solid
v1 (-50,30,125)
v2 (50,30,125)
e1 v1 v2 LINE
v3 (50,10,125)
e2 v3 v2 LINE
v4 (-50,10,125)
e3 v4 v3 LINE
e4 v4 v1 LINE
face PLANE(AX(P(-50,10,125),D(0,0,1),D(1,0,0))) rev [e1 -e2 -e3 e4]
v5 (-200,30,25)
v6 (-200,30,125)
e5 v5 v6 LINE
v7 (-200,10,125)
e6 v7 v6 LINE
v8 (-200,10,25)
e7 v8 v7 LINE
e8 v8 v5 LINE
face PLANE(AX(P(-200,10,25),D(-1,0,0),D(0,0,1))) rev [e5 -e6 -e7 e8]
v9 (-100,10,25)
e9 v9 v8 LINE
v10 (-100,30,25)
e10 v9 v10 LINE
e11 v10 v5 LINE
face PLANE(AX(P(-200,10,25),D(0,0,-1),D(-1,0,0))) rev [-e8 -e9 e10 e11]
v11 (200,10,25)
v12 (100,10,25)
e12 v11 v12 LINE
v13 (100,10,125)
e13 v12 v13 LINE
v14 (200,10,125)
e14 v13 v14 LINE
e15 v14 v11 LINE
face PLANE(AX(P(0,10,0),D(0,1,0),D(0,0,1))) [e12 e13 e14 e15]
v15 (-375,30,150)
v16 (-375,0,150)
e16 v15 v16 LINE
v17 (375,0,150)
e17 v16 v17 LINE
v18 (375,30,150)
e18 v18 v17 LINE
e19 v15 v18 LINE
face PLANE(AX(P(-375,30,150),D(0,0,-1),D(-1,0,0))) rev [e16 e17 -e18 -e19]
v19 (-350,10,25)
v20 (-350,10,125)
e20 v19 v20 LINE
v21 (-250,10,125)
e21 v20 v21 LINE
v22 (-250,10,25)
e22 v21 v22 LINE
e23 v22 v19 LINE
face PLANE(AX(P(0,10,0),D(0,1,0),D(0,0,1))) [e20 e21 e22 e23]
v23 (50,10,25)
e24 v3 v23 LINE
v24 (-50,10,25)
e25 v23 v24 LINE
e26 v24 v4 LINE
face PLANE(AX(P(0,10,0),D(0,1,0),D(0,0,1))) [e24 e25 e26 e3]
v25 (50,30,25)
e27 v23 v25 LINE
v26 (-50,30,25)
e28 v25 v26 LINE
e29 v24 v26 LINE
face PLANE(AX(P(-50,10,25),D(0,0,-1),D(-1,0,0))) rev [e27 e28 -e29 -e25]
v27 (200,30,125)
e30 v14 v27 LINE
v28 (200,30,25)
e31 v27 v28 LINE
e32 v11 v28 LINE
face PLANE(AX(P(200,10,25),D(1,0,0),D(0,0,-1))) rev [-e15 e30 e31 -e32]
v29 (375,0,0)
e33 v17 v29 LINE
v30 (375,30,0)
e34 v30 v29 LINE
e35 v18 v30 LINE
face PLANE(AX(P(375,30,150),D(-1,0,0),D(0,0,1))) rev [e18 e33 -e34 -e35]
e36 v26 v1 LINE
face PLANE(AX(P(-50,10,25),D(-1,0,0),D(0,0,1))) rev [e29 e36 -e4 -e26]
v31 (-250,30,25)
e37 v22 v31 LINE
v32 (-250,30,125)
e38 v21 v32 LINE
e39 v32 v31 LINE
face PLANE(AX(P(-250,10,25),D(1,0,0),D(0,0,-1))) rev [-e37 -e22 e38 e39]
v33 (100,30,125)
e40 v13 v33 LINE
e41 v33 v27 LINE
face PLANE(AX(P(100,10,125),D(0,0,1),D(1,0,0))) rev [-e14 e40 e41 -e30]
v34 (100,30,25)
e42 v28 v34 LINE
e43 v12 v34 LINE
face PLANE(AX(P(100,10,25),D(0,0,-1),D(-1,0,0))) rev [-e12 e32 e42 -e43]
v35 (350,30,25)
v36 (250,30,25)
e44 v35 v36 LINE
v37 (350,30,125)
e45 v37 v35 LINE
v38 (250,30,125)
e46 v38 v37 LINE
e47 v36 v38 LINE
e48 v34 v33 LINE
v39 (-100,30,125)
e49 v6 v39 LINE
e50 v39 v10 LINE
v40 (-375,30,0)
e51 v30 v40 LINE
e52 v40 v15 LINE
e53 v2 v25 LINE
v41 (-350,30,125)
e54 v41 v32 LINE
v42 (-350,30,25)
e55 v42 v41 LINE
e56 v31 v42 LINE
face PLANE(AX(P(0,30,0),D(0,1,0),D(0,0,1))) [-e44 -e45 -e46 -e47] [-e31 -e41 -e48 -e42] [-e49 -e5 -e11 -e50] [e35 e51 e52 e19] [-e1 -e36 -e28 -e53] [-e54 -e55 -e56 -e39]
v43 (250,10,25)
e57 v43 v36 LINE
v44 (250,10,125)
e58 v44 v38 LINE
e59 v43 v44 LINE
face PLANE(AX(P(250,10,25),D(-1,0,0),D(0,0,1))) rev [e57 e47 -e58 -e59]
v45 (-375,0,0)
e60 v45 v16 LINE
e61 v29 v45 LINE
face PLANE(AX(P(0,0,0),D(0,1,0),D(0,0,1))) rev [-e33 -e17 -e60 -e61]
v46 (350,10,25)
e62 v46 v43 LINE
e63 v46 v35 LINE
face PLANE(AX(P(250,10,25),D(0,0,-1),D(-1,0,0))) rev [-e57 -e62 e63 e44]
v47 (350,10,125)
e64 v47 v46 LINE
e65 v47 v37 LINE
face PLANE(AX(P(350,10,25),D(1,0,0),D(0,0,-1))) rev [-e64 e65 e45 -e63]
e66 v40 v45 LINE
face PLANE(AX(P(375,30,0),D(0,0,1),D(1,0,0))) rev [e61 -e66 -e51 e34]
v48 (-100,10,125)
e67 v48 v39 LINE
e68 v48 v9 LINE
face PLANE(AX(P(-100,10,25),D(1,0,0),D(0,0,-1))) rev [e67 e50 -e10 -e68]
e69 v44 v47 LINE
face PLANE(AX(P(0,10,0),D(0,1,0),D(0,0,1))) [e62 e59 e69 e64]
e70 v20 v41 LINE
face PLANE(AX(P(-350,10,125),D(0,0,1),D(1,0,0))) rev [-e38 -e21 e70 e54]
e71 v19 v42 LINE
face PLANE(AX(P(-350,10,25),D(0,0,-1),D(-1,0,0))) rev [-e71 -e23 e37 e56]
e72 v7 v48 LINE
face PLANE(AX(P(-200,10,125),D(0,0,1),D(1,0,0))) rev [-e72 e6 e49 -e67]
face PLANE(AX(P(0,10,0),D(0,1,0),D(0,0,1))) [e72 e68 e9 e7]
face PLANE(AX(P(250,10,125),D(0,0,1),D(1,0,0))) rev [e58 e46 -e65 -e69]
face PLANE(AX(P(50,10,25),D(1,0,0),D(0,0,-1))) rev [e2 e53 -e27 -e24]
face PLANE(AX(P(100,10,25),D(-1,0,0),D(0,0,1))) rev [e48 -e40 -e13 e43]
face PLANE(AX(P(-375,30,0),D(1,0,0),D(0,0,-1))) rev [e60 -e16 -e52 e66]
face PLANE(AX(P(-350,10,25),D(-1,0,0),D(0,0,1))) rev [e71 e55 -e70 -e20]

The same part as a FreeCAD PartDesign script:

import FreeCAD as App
import Part
import Sketcher

V = App.Vector
Q = App.Units.Quantity

doc = App.newDocument("Part")
params = doc.addObject("Spreadsheet::Sheet", "Params")
for row, (alias, value) in enumerate([
    ("sketch1_width", "750 mm"),
    ("sketch1_height", "150 mm"),
    ("pad1_length", "30 mm"),
    ("sketch2_width", "100 mm"),
    ("pocket1_length", "20 mm"),
], start=1):
    params.set(f"A{row}", alias)
    params.set(f"B{row}", "=" + value)
    params.setAlias(f"B{row}", alias)

body = doc.addObject("PartDesign::Body", "Body")

sketch1 = body.newObject("Sketcher::SketchObject", "Sketch")
sketch1.AttachmentSupport = (doc.getObject("XZ_Plane"), [""])
sketch1.MapMode = "FlatFace"
sketch1.addGeometry([
    Part.LineSegment(V(-375, 0, 0), V(-375, 150, 0)),
    Part.LineSegment(V(-375, 150, 0), V(375, 150, 0)),
    Part.LineSegment(V(375, 150, 0), V(375, 0, 0)),
    Part.LineSegment(V(375, 0, 0), V(-375, 0, 0)),
], False)
sketch1.addConstraint([
    Sketcher.Constraint("Coincident", 0, 2, 1, 1),
    Sketcher.Constraint("Coincident", 1, 2, 2, 1),
    Sketcher.Constraint("Coincident", 2, 2, 3, 1),
    Sketcher.Constraint("Coincident", 3, 2, 0, 1),
    Sketcher.Constraint("Vertical", 0),
    Sketcher.Constraint("Horizontal", 1),
    Sketcher.Constraint("Vertical", 2),
    Sketcher.Constraint("Horizontal", 3),
    Sketcher.Constraint("Symmetric", 2, 2, 3, 2, -1, 1),
    Sketcher.Constraint("DistanceX", 1, 1, 1, 2, Q("750 mm")),
    Sketcher.Constraint("DistanceY", 0, 1, 0, 2, Q("150 mm")),
])
sketch1.setExpression("Constraints[9]", "Params.sketch1_width")
sketch1.setExpression("Constraints[10]", "Params.sketch1_height")
pad1 = body.newObject("PartDesign::Pad", "Pad")
pad1.Profile = sketch1
pad1.setExpression("Length", "Params.pad1_length")
pad1.Reversed = True

sketch2 = body.newObject("Sketcher::SketchObject", "Sketch001")
sketch2.AttachmentSupport = (doc.getObject("XZ_Plane"), [""])
sketch2.MapMode = "FlatFace"
sketch2.AttachmentOffset = App.Placement(V(0, 0, -30), App.Rotation())
sketch2.addGeometry([
    Part.LineSegment(V(-200, 25, 0), V(-200, 125, 0)),
    Part.LineSegment(V(-200, 125, 0), V(-100, 125, 0)),
    Part.LineSegment(V(-100, 125, 0), V(-100, 25, 0)),
    Part.LineSegment(V(-100, 25, 0), V(-200, 25, 0)),
    Part.LineSegment(V(-350, 25, 0), V(-350, 125, 0)),
    Part.LineSegment(V(-350, 125, 0), V(-250, 125, 0)),
    Part.LineSegment(V(-250, 125, 0), V(-250, 25, 0)),
    Part.LineSegment(V(-250, 25, 0), V(-350, 25, 0)),
    Part.LineSegment(V(-50, 25, 0), V(-50, 125, 0)),
    Part.LineSegment(V(-50, 125, 0), V(50, 125, 0)),
    Part.LineSegment(V(50, 125, 0), V(50, 25, 0)),
    Part.LineSegment(V(50, 25, 0), V(-50, 25, 0)),
    Part.LineSegment(V(100, 25, 0), V(100, 125, 0)),
    Part.LineSegment(V(100, 125, 0), V(200, 125, 0)),
    Part.LineSegment(V(200, 125, 0), V(200, 25, 0)),
    Part.LineSegment(V(200, 25, 0), V(100, 25, 0)),
    Part.LineSegment(V(250, 25, 0), V(250, 125, 0)),
    Part.LineSegment(V(250, 125, 0), V(350, 125, 0)),
    Part.LineSegment(V(350, 125, 0), V(350, 25, 0)),
    Part.LineSegment(V(350, 25, 0), V(250, 25, 0)),
], False)
sketch2.addConstraint([
    Sketcher.Constraint("Coincident", 0, 2, 1, 1),
    Sketcher.Constraint("Coincident", 1, 2, 2, 1),
    Sketcher.Constraint("Coincident", 2, 2, 3, 1),
    Sketcher.Constraint("Coincident", 3, 2, 0, 1),
    Sketcher.Constraint("Coincident", 4, 2, 5, 1),
    Sketcher.Constraint("Coincident", 5, 2, 6, 1),
    Sketcher.Constraint("Coincident", 6, 2, 7, 1),
    Sketcher.Constraint("Coincident", 7, 2, 4, 1),
    Sketcher.Constraint("Coincident", 8, 2, 9, 1),
    Sketcher.Constraint("Coincident", 9, 2, 10, 1),
    Sketcher.Constraint("Coincident", 10, 2, 11, 1),
    Sketcher.Constraint("Coincident", 11, 2, 8, 1),
    Sketcher.Constraint("Coincident", 12, 2, 13, 1),
    Sketcher.Constraint("Coincident", 13, 2, 14, 1),
    Sketcher.Constraint("Coincident", 14, 2, 15, 1),
    Sketcher.Constraint("Coincident", 15, 2, 12, 1),
    Sketcher.Constraint("Coincident", 16, 2, 17, 1),
    Sketcher.Constraint("Coincident", 17, 2, 18, 1),
    Sketcher.Constraint("Coincident", 18, 2, 19, 1),
    Sketcher.Constraint("Coincident", 19, 2, 16, 1),
    Sketcher.Constraint("Vertical", 0),
    Sketcher.Constraint("Horizontal", 1),
    Sketcher.Constraint("Vertical", 2),
    Sketcher.Constraint("Horizontal", 3),
    Sketcher.Constraint("Vertical", 4),
    Sketcher.Constraint("Horizontal", 5),
    Sketcher.Constraint("Vertical", 6),
    Sketcher.Constraint("Horizontal", 7),
    Sketcher.Constraint("Vertical", 8),
    Sketcher.Constraint("Horizontal", 9),
    Sketcher.Constraint("Vertical", 10),
    Sketcher.Constraint("Horizontal", 11),
    Sketcher.Constraint("Vertical", 12),
    Sketcher.Constraint("Horizontal", 13),
    Sketcher.Constraint("Vertical", 14),
    Sketcher.Constraint("Horizontal", 15),
    Sketcher.Constraint("Vertical", 16),
    Sketcher.Constraint("Horizontal", 17),
    Sketcher.Constraint("Vertical", 18),
    Sketcher.Constraint("Horizontal", 19),
    Sketcher.Constraint("Symmetric", 1, 2, 12, 2, -2),
    Sketcher.Constraint("Symmetric", 3, 2, 14, 2, -2),
    Sketcher.Constraint("Symmetric", 5, 2, 16, 2, -2),
    Sketcher.Constraint("Symmetric", 7, 2, 18, 2, -2),
    Sketcher.Constraint("Horizontal", 1, 2, 4, 2),
    Sketcher.Constraint("Horizontal", 3, 2, 6, 2),
    Sketcher.Constraint("Horizontal", 5, 2, 8, 2),
    Sketcher.Constraint("Horizontal", 7, 2, 10, 2),
    Sketcher.Constraint("Equal", 3, 5),
    Sketcher.Constraint("Equal", 7, 9),
    Sketcher.Constraint("Equal", 19, 0),
    Sketcher.Constraint("DistanceX", 1, 1, 1, 2, Q("100 mm")),
    Sketcher.Constraint("DistanceX", 0, 2, -1, 1, Q("200 mm")),
    Sketcher.Constraint("DistanceY", -1, 1, 0, 2, Q("125 mm")),
    Sketcher.Constraint("DistanceX", 4, 2, -1, 1, Q("350 mm")),
    Sketcher.Constraint("DistanceX", 8, 2, -1, 1, Q("50 mm")),
])
sketch2.setExpression("Constraints[51]", "Params.sketch2_width")
pocket1 = body.newObject("PartDesign::Pocket", "Pocket")
pocket1.Profile = sketch2
pocket1.setExpression("Length", "Params.pocket1_length")
pocket1.Reversed = True

doc.recompute()
